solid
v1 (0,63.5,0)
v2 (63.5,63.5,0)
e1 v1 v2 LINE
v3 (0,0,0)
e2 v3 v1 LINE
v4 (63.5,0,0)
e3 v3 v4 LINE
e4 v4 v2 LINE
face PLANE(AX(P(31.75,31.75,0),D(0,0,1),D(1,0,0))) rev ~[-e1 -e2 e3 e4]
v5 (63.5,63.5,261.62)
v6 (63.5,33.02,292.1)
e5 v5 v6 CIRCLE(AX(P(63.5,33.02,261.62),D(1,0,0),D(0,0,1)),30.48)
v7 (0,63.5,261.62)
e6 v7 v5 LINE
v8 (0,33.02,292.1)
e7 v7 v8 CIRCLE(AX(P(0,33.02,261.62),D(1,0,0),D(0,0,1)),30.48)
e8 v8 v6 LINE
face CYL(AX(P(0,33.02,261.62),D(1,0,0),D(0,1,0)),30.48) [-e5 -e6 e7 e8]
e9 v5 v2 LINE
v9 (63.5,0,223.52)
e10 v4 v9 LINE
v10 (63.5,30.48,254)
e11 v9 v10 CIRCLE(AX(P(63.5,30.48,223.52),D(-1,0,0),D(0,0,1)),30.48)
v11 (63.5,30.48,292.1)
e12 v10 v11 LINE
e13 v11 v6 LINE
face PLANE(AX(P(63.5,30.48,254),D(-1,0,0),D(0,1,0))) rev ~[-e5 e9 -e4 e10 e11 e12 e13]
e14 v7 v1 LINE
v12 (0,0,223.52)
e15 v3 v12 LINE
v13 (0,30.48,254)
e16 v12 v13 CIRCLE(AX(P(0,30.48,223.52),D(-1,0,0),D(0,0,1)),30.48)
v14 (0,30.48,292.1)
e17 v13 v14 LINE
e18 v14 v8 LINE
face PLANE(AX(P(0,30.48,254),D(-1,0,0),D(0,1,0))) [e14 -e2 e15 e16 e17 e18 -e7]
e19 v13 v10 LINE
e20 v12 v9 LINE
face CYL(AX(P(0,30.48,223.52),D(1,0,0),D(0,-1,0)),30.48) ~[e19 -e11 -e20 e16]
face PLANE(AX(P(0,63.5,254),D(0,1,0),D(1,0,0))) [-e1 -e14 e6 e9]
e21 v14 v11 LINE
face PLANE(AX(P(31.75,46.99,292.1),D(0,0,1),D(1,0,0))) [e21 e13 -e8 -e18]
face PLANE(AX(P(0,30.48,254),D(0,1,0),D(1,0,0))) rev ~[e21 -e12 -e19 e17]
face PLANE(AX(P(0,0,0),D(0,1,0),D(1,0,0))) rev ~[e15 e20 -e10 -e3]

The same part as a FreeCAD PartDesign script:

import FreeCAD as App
import Part
import Sketcher
from FreeCAD import Vector
Q = App.Units.Quantity


def edges_at(feature, points):
    """Names of the edges that pass closest to the given points."""
    edges = feature.Shape.Edges
    near = lambda p: min(range(len(edges)), key=lambda i: edges[i].distToShape(Part.Vertex(*p))[0])
    return sorted({f"Edge{near(p) + 1}" for p in points})

doc = App.newDocument("Part")
body = doc.addObject("PartDesign::Body", "Body")

sketch1 = body.newObject("Sketcher::SketchObject", "Sketch")
sketch1.AttachmentSupport = (doc.getObject("XY_Plane"), [""])
sketch1.MapMode = "FlatFace"
sketch1.addGeometry([
    Part.LineSegment(Vector(0, 64, 0), Vector(0, 0, 0)),
    Part.LineSegment(Vector(0, 0, 0), Vector(64, 0, 0)),
    Part.LineSegment(Vector(64, 0, 0), Vector(64, 64, 0)),
    Part.LineSegment(Vector(64, 64, 0), Vector(0, 64, 0)),
], False)
sketch1.addConstraint([
    Sketcher.Constraint("Coincident", 0, 2, 1, 1),
    Sketcher.Constraint("Coincident", 1, 2, 2, 1),
    Sketcher.Constraint("Coincident", 2, 2, 3, 1),
    Sketcher.Constraint("Coincident", 3, 2, 0, 1),
    Sketcher.Constraint("Vertical", 0),
    Sketcher.Constraint("Horizontal", 1),
    Sketcher.Constraint("Vertical", 2),
    Sketcher.Constraint("Horizontal", 3),
    Sketcher.Constraint("Coincident", 0, 2, -1, 1),
    Sketcher.Constraint("Equal", 3, 0),
    Sketcher.Constraint("DistanceX", 1, 1, 1, 2, Q("2.5 in")),
])
pad1 = body.newObject("PartDesign::Pad", "Pad")
pad1.Profile = sketch1
pad1.Length = Q("10 in")
doc.recompute()

fillet = body.newObject("PartDesign::Fillet", "Fillet")
fillet.Base = (pad1, edges_at(pad1, [(31.75, 0, 254)]))
fillet.Radius = Q("1.2 in")

sketch2 = body.newObject("Sketcher::SketchObject", "Sketch001")
sketch2.AttachmentSupport = (doc.getObject("XY_Plane"), [""])
sketch2.MapMode = "FlatFace"
sketch2.AttachmentOffset = App.Placement(Vector(0, 0, 10 * 25.4), App.Rotation())
sketch2.addGeometry([
    Part.LineSegment(Vector(0, 64, 0), Vector(0, 30, 0)),
    Part.LineSegment(Vector(0, 30, 0), Vector(64, 30, 0)),
    Part.LineSegment(Vector(64, 30, 0), Vector(64, 64, 0)),
    Part.LineSegment(Vector(64, 64, 0), Vector(0, 64, 0)),
], False)
sketch2.addConstraint([
    Sketcher.Constraint("Coincident", 0, 2, 1, 1),
    Sketcher.Constraint("Coincident", 1, 2, 2, 1),
    Sketcher.Constraint("Coincident", 2, 2, 3, 1),
    Sketcher.Constraint("Coincident", 3, 2, 0, 1),
    Sketcher.Constraint("Vertical", 0),
    Sketcher.Constraint("Horizontal", 1),
    Sketcher.Constraint("Vertical", 2),
    Sketcher.Constraint("Horizontal", 3),
    Sketcher.Constraint("PointOnObject", 0, 2, -2),
    Sketcher.Constraint("DistanceX", 1, 1, 1, 2, Q("2.5 in")),
    Sketcher.Constraint("DistanceY", 0, 2, 0, 1, Q("1.3 in")),
    Sketcher.Constraint("DistanceY", -1, 1, 0, 2, Q("1.2 in")),
])
pad2 = body.newObject("PartDesign::Pad", "Pad001")
pad2.Profile = sketch2
pad2.Length = Q("1.5 in")
doc.recompute()

fillet2 = body.newObject("PartDesign::Fillet", "Fillet001")
fillet2.Base = (pad2, edges_at(pad2, [(31.75, 63.5, 292.1)]))
fillet2.Radius = Q("1.2 in")

doc.recompute()
